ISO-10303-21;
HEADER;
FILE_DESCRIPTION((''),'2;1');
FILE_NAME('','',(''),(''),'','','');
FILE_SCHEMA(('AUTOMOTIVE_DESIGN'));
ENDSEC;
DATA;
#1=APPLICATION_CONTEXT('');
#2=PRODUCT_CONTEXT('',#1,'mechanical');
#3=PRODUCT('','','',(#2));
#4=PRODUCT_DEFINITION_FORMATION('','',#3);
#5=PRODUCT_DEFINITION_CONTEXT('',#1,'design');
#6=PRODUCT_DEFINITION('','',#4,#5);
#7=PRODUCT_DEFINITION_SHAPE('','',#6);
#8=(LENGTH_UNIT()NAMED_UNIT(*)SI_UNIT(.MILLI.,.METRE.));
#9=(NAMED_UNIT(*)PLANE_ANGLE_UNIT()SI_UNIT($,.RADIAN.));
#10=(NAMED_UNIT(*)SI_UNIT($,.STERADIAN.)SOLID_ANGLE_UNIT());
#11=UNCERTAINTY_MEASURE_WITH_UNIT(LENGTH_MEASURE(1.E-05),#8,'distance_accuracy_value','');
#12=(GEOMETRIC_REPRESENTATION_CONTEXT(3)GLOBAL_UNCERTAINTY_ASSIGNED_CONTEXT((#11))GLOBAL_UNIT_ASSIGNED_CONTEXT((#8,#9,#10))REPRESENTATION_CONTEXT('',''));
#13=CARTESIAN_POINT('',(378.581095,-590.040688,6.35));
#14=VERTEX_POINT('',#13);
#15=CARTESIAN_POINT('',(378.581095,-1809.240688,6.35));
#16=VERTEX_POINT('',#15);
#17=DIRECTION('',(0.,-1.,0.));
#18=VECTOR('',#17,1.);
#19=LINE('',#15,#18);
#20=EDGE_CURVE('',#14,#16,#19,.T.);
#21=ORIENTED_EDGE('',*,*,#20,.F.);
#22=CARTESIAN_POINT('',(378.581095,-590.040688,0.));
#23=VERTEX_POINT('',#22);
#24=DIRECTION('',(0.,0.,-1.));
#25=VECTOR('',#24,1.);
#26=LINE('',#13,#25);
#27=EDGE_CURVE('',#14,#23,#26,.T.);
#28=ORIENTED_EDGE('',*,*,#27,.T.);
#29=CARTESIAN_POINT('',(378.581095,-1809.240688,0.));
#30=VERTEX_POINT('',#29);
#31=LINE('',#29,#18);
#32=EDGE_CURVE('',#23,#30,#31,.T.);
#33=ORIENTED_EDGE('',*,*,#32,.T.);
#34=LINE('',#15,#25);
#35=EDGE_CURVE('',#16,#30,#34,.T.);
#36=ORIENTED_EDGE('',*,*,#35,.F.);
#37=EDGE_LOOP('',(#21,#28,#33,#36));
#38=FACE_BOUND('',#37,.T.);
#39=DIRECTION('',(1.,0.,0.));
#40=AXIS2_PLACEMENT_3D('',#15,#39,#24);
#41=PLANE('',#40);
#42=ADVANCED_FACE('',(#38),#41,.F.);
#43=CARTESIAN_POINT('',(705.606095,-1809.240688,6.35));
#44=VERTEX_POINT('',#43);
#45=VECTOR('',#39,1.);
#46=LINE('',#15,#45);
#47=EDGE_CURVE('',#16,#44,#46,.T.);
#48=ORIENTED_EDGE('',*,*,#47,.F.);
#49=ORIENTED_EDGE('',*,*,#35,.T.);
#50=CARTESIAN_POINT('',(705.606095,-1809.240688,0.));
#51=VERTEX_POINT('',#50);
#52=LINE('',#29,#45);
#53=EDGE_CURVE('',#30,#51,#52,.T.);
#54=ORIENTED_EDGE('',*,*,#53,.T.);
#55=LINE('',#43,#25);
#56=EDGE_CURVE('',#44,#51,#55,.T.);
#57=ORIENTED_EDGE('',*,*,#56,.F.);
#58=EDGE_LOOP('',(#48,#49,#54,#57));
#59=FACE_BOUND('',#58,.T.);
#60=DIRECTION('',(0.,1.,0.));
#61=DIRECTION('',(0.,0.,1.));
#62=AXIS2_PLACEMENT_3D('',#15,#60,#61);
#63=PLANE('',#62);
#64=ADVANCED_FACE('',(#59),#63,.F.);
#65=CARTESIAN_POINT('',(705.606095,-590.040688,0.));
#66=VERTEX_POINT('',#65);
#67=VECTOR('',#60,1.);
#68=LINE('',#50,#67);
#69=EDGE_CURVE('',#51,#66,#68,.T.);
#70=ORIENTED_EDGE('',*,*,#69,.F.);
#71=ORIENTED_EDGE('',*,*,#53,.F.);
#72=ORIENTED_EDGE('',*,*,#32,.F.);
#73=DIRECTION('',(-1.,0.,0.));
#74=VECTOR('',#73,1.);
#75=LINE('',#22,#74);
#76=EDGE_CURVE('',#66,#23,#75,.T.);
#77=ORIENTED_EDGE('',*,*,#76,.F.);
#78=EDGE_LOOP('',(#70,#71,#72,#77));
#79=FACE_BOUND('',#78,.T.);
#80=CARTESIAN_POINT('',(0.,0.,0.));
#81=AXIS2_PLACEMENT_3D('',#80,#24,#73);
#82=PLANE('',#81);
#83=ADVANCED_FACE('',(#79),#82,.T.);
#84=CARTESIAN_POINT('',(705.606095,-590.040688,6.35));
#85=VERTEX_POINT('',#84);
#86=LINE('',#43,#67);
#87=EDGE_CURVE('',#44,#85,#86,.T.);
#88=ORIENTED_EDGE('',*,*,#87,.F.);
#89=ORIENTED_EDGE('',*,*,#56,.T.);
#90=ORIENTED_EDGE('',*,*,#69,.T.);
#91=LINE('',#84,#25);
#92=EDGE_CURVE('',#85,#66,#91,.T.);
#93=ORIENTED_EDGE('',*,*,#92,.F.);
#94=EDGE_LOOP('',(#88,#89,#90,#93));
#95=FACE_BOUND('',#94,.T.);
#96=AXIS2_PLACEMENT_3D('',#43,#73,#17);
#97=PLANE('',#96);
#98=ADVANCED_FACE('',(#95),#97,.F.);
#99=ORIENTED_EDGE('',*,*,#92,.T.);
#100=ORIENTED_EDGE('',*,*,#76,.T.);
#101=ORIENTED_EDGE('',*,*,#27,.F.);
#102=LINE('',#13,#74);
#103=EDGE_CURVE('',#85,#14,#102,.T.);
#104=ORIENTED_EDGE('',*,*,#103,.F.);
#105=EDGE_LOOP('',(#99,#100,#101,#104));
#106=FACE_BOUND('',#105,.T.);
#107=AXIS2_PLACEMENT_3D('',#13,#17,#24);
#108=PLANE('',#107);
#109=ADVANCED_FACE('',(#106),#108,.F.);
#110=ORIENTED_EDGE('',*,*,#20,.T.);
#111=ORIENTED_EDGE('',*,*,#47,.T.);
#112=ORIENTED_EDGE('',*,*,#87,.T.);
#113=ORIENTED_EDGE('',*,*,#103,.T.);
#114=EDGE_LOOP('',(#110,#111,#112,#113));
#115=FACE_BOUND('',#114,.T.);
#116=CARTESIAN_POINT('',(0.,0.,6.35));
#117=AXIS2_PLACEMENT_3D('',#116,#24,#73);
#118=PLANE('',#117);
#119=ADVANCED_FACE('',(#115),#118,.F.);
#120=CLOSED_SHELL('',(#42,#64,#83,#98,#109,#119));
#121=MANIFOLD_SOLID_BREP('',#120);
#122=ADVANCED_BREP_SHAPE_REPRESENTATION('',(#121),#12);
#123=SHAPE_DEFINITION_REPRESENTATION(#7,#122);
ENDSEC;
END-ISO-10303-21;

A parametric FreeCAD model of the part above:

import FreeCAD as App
import Part
import Sketcher
Q = App.Units.Quantity


def add_polygon(sketch, points):
    """Adds a closed chain of lines whose ends are joined by coincident constraints."""
    first, n = sketch.GeometryCount, len(points)
    for a, b in zip(points, points[1:] + points[:1]):
        sketch.addGeometry(Part.LineSegment(App.Vector(*a, 0), App.Vector(*b, 0)), False)
    for i in range(n):
        sketch.addConstraint(Sketcher.Constraint("Coincident", first + i, 2, first + (i + 1) % n, 1))

doc = App.newDocument("Part")
body = doc.addObject("PartDesign::Body", "Body")

# Sketch on XY plane
sketch1 = body.newObject("Sketcher::SketchObject", "Sketch")
sketch1.AttachmentSupport = (doc.getObject("XY_Plane"), [""])
sketch1.MapMode = "FlatFace"
add_polygon(sketch1, [(379, -590), (379, -1809), (706, -1809), (706, -590)])  # lines 0-3
sketch1.addConstraint([
    Sketcher.Constraint("Vertical", 0),
    Sketcher.Constraint("Horizontal", 1),
    Sketcher.Constraint("Vertical", 2),
    Sketcher.Constraint("Horizontal", 3),
    Sketcher.Constraint("DistanceY", 0, 2, 0, 1, Q("48 in")),
    Sketcher.Constraint("DistanceX", 1, 1, 1, 2, Q("12.875 in")),
    Sketcher.Constraint("DistanceX", -1, 1, 0, 2, Q("378.581095 mm")),
    Sketcher.Constraint("DistanceY", 0, 2, -1, 1, Q("1809.240688 mm")),
])
pad1 = body.newObject("PartDesign::Pad", "Pad")
pad1.Profile = sketch1
pad1.Length = Q("0.25 in")

doc.recompute()
